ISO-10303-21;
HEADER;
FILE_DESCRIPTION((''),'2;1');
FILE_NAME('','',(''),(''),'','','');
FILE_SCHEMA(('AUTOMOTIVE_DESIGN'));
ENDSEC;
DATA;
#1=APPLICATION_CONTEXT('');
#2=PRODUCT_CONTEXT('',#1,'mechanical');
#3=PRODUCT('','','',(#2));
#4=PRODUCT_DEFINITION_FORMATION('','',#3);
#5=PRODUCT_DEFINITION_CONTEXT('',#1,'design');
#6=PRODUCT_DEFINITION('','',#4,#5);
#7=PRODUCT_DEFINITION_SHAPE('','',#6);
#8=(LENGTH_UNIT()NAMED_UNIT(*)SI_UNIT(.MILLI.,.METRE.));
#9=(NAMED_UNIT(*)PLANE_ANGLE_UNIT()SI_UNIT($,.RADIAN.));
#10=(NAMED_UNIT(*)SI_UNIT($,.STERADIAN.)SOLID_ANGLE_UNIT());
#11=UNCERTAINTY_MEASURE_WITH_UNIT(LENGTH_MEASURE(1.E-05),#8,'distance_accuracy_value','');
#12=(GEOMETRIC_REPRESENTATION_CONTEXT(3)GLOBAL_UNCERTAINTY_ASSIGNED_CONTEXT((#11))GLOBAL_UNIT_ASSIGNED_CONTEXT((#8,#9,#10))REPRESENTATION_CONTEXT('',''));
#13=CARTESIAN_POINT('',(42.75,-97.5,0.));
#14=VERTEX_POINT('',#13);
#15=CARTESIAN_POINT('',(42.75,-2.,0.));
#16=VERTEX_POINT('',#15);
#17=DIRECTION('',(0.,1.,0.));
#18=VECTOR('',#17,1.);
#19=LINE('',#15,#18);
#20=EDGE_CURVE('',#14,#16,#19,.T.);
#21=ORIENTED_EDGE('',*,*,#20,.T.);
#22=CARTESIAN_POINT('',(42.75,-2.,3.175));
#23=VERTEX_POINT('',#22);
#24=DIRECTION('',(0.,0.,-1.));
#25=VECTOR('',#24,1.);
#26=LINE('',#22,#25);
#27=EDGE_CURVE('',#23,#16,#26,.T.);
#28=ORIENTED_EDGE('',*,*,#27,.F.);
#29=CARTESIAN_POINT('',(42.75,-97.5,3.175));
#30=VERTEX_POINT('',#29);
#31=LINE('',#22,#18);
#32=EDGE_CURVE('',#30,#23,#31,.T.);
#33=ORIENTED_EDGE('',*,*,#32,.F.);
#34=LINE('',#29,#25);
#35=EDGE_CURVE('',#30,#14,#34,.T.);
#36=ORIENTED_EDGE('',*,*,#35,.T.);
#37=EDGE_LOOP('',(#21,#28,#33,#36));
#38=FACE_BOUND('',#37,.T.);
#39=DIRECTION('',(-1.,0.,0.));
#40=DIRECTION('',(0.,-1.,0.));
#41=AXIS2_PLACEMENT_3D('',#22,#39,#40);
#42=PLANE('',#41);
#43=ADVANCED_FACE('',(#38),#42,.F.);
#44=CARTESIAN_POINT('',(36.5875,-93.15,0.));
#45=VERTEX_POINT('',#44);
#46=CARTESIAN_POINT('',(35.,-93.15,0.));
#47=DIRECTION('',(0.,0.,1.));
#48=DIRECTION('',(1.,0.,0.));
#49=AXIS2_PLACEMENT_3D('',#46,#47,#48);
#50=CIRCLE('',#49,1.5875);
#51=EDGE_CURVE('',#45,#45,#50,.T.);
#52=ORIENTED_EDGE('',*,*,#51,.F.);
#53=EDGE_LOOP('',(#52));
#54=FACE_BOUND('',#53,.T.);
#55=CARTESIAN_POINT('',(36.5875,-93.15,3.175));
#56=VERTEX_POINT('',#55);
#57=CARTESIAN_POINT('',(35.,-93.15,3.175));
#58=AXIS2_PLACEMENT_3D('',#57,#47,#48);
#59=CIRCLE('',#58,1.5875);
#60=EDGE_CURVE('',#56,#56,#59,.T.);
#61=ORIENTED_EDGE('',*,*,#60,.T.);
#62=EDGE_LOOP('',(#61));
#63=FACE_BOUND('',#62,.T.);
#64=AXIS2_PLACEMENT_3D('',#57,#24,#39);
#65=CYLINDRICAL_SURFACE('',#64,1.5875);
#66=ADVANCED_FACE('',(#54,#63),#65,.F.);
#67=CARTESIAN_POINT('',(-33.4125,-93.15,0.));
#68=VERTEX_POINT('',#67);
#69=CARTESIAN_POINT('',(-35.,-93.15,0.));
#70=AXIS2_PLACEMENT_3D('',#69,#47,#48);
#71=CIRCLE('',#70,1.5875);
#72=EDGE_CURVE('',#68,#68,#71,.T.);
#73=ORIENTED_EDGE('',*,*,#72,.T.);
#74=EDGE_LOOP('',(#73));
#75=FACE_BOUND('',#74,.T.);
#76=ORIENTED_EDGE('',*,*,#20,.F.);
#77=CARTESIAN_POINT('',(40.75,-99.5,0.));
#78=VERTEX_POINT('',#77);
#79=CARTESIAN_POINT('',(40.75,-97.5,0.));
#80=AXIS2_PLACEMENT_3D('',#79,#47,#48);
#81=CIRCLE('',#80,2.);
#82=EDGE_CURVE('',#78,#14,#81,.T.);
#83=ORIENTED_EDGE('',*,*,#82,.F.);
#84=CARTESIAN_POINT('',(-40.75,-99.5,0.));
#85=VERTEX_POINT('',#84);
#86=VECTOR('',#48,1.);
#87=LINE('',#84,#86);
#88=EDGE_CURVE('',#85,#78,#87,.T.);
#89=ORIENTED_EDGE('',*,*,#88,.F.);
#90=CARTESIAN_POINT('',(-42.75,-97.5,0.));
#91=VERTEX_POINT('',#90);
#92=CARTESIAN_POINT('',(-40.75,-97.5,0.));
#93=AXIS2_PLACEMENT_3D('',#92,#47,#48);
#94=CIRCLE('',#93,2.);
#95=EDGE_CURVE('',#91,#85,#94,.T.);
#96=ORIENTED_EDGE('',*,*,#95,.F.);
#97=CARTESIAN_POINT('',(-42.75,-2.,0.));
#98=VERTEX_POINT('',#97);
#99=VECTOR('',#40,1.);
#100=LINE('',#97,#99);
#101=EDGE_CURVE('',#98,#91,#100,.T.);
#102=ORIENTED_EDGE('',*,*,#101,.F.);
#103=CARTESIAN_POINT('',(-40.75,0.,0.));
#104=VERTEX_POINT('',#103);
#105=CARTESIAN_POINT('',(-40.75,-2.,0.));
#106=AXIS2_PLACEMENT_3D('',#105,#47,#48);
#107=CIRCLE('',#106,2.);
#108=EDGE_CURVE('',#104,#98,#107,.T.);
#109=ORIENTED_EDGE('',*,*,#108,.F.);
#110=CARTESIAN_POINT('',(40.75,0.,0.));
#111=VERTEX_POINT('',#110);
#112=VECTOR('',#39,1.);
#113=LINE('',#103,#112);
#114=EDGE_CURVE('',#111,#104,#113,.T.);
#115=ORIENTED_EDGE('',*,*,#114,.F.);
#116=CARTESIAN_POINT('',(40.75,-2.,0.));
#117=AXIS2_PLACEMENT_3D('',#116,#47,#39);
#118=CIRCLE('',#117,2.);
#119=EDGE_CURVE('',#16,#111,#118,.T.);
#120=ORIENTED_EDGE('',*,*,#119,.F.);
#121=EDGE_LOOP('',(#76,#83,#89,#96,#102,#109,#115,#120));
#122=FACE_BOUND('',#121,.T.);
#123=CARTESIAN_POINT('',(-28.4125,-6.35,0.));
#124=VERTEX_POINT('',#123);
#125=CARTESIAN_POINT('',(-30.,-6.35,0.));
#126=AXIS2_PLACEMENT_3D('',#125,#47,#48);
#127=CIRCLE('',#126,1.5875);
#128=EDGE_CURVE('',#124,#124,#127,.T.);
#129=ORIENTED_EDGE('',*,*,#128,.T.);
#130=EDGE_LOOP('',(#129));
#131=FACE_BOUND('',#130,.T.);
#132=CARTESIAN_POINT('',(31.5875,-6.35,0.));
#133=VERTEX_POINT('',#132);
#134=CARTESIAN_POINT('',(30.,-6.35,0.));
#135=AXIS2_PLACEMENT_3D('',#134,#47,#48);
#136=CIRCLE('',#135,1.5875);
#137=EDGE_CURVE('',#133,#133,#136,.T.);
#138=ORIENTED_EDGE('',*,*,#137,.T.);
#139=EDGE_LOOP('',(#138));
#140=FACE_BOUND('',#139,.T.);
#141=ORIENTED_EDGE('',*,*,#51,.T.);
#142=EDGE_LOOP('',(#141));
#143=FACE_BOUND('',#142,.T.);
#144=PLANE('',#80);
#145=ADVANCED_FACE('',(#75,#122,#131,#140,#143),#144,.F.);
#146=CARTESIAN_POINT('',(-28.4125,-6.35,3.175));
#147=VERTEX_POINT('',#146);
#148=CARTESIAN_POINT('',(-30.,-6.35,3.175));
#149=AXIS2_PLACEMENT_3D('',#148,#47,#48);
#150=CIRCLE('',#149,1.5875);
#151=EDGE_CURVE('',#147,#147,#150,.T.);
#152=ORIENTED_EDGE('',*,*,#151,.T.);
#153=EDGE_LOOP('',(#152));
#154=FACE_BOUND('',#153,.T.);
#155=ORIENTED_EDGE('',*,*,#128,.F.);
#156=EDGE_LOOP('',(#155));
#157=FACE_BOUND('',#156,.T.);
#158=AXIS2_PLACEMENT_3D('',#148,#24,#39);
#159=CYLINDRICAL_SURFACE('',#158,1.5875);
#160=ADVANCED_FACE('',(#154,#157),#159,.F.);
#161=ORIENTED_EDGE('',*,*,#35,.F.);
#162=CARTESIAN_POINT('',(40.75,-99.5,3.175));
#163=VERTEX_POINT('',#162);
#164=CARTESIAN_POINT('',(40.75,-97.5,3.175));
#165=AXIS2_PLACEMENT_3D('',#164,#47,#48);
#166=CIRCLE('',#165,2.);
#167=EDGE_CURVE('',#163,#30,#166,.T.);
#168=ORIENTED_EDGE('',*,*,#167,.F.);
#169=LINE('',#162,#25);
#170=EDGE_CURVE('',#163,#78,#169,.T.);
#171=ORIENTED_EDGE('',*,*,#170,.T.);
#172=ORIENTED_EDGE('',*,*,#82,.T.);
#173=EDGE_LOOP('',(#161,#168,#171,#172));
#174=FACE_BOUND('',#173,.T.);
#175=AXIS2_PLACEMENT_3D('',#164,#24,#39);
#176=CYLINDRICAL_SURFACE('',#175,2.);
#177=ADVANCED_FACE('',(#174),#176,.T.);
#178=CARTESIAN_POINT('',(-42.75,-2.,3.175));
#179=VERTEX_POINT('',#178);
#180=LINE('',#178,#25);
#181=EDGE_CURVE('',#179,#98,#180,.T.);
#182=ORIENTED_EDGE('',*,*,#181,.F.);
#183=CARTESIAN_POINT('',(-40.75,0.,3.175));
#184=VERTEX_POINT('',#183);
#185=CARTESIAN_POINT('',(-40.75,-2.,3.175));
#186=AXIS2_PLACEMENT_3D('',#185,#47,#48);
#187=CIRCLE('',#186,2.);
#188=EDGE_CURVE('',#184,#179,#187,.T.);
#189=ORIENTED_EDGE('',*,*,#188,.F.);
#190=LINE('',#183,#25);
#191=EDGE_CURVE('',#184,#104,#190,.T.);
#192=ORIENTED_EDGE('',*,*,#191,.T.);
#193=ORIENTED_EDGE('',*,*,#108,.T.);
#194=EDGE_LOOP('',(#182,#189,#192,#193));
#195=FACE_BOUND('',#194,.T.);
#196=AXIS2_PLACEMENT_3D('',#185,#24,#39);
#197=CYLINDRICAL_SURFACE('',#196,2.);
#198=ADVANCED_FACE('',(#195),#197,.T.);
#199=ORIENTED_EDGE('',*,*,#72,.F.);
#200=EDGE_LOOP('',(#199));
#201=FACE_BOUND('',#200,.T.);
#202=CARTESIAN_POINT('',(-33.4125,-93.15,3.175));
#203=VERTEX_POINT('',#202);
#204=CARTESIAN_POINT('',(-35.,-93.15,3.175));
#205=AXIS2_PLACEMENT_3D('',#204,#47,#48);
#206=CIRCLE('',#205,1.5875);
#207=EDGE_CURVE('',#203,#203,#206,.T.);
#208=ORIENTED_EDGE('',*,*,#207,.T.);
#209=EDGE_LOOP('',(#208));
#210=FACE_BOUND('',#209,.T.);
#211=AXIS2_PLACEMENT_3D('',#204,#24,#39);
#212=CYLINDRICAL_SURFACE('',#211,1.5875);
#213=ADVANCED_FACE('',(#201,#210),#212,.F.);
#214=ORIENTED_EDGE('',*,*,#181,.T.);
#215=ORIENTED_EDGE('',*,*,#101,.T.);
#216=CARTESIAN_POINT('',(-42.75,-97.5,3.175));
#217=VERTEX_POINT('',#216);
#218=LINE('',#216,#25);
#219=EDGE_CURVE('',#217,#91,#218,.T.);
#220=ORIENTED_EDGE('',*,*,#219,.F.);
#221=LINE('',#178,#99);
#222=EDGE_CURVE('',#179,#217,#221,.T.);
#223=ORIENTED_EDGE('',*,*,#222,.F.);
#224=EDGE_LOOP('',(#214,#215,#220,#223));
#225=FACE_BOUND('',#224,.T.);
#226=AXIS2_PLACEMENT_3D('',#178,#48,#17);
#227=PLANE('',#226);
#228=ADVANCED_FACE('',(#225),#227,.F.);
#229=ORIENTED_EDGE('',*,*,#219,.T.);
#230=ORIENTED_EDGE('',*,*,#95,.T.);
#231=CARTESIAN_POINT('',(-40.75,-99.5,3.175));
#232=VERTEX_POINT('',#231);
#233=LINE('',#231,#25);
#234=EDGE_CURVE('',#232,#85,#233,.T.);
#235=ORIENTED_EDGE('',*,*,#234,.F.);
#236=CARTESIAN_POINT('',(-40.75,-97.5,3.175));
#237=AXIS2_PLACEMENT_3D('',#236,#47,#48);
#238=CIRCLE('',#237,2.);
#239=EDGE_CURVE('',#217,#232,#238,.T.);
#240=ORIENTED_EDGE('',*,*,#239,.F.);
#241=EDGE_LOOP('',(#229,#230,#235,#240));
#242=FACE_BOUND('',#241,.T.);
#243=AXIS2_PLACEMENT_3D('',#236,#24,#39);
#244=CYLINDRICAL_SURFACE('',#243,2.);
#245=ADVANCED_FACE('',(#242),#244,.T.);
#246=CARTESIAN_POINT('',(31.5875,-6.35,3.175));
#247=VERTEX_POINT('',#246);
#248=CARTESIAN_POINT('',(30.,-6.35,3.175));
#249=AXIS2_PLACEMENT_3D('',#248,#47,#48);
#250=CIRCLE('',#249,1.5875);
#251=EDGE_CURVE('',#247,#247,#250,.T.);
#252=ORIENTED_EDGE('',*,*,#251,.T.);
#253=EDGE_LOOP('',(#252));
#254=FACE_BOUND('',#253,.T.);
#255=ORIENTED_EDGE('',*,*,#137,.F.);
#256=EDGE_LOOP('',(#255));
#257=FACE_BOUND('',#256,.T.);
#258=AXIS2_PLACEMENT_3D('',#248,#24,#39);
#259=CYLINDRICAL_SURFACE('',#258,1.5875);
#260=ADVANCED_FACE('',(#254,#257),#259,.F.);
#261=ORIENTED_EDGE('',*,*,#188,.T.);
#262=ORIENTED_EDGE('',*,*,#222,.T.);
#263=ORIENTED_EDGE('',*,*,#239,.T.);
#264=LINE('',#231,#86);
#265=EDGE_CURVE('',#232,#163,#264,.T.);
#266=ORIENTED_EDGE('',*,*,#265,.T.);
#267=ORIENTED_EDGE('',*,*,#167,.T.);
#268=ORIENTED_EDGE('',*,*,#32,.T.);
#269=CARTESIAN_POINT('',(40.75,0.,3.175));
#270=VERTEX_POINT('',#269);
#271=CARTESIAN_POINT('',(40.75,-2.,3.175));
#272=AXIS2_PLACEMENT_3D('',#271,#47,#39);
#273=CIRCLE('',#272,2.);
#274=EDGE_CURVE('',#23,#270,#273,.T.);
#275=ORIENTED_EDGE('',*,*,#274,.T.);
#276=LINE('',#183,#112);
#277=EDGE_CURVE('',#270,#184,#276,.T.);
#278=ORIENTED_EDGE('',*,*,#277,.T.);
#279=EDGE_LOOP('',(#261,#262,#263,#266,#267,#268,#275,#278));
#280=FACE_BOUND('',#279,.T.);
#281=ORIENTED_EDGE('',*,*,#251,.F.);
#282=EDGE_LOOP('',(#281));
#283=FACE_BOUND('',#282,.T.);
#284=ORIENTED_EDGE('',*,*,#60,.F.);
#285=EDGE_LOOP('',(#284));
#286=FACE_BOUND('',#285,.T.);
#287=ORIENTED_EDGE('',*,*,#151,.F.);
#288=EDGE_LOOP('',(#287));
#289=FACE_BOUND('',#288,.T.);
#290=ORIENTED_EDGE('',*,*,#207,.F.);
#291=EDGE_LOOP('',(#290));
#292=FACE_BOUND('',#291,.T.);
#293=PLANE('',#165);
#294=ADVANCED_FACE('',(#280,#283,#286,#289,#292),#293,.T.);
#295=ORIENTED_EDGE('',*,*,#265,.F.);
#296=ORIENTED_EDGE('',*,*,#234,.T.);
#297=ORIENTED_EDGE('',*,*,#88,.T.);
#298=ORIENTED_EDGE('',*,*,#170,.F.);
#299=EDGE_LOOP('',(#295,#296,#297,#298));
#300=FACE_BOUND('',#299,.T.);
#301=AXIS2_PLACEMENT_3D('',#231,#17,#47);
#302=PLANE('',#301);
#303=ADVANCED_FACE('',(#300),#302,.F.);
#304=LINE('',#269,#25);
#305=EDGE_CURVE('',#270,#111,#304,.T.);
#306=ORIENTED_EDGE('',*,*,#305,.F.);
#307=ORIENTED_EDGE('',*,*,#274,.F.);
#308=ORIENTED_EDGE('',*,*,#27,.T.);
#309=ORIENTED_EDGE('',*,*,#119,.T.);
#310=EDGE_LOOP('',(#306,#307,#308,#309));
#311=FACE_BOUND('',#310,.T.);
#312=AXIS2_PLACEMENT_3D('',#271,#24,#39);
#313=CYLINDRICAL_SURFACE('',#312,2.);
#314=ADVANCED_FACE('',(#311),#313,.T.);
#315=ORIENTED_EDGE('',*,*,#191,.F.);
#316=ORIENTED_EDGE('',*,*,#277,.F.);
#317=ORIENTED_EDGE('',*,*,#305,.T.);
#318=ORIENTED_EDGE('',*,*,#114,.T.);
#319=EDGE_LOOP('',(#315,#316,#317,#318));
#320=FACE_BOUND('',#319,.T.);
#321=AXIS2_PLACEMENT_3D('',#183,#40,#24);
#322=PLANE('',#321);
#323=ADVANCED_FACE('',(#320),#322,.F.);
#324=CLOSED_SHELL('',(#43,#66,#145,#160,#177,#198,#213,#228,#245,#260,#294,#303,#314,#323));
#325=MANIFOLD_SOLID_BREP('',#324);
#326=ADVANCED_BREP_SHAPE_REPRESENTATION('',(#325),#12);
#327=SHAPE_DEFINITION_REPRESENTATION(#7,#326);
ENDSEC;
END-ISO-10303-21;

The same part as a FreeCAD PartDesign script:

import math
import FreeCAD as App
import Part
import Sketcher

V = App.Vector
Q = App.Units.Quantity

doc = App.newDocument("Part")
body = doc.addObject("PartDesign::Body", "Body")

# Sketch on XY plane
sketch1 = body.newObject("Sketcher::SketchObject", "Sketch")
sketch1.AttachmentSupport = (doc.getObject("XY_Plane"), [""])
sketch1.MapMode = "FlatFace"
sketch1.addGeometry(Part.LineSegment(V(40.75, 0, 0), V(-40.75, 0, 0)), False)
sketch1.addGeometry(Part.ArcOfCircle(Part.Circle(V(-40.75, -2, 0), V(0, 0, 1), 2), math.radians(90), math.radians(180)), False)
sketch1.addGeometry(Part.LineSegment(V(-42.75, -2, 0), V(-42.75, -97.5, 0)), False)
sketch1.addGeometry(Part.ArcOfCircle(Part.Circle(V(-40.75, -97.5, 0), V(0, 0, 1), 2), math.radians(-180), math.radians(-90)), False)
sketch1.addGeometry(Part.LineSegment(V(-40.75, -99.5, 0), V(40.75, -99.5, 0)), False)
sketch1.addGeometry(Part.ArcOfCircle(Part.Circle(V(40.75, -97.5, 0), V(0, 0, 1), 2), math.radians(-90), math.radians(0)), False)
sketch1.addGeometry(Part.LineSegment(V(42.75, -97.5, 0), V(42.75, -2, 0)), False)
sketch1.addGeometry(Part.ArcOfCircle(Part.Circle(V(40.75, -2, 0), V(0, 0, 1), 2), math.radians(0), math.radians(90)), False)
sketch1.addGeometry(Part.Circle(V(35, -93.15, 0), V(0, 0, 1), 1.5875), False)
sketch1.addGeometry(Part.Circle(V(-35, -93.15, 0), V(0, 0, 1), 1.5875), False)
sketch1.addGeometry(Part.Circle(V(30, -6.35, 0), V(0, 0, 1), 1.5875), False)
sketch1.addGeometry(Part.Circle(V(-30, -6.35, 0), V(0, 0, 1), 1.5875), False)
sketch1.addConstraint(Sketcher.Constraint("Tangent", 0, 2, 1, 1))
sketch1.addConstraint(Sketcher.Constraint("Tangent", 1, 2, 2, 1))
sketch1.addConstraint(Sketcher.Constraint("Tangent", 2, 2, 3, 1))
sketch1.addConstraint(Sketcher.Constraint("Tangent", 3, 2, 4, 1))
sketch1.addConstraint(Sketcher.Constraint("Tangent", 4, 2, 5, 1))
sketch1.addConstraint(Sketcher.Constraint("Tangent", 5, 2, 6, 1))
sketch1.addConstraint(Sketcher.Constraint("Tangent", 6, 2, 7, 1))
sketch1.addConstraint(Sketcher.Constraint("Tangent", 7, 2, 0, 1))
sketch1.addConstraint(Sketcher.Constraint("Horizontal", 0))
sketch1.addConstraint(Sketcher.Constraint("Vertical", 2))
sketch1.addConstraint(Sketcher.Constraint("Horizontal", 4))
sketch1.addConstraint(Sketcher.Constraint("Vertical", 6))
sketch1.addConstraint(Sketcher.Constraint("Equal", 1, 3))
sketch1.addConstraint(Sketcher.Constraint("Equal", 3, 5))
sketch1.addConstraint(Sketcher.Constraint("Equal", 5, 7))
sketch1.addConstraint(Sketcher.Constraint("Equal", 8, 9))
sketch1.addConstraint(Sketcher.Constraint("Equal", 9, 10))
sketch1.addConstraint(Sketcher.Constraint("Equal", 10, 11))
sketch1.addConstraint(Sketcher.Constraint("Symmetric", 0, 2, 7, 2, -1, 1))
sketch1.addConstraint(Sketcher.Constraint("Symmetric", 8, 3, 9, 3, -2))
sketch1.addConstraint(Sketcher.Constraint("Symmetric", 10, 3, 11, 3, -2))
sketch1.addConstraint(Sketcher.Constraint("Radius", 1, Q("2 mm")))
sketch1.addConstraint(Sketcher.Constraint("Diameter", 8, Q("3.175 mm")))
sketch1.addConstraint(Sketcher.Constraint("DistanceX", 0, 2, 0, 1, Q("81.5 mm")))
sketch1.addConstraint(Sketcher.Constraint("DistanceY", 2, 2, 2, 1, Q("95.5 mm")))
sketch1.addConstraint(Sketcher.Constraint("DistanceX", -1, 1, 8, 3, Q("35 mm")))
sketch1.addConstraint(Sketcher.Constraint("DistanceX", -1, 1, 10, 3, Q("30 mm")))
sketch1.addConstraint(Sketcher.Constraint("DistanceY", 8, 3, 10, 3, Q("86.8 mm")))
sketch1.addConstraint(Sketcher.Constraint("DistanceY", 8, 3, -1, 1, Q("93.15 mm")))
pad1 = body.newObject("PartDesign::Pad", "Pad")
pad1.Profile = sketch1
pad1.Length = 3.175

doc.recompute()
